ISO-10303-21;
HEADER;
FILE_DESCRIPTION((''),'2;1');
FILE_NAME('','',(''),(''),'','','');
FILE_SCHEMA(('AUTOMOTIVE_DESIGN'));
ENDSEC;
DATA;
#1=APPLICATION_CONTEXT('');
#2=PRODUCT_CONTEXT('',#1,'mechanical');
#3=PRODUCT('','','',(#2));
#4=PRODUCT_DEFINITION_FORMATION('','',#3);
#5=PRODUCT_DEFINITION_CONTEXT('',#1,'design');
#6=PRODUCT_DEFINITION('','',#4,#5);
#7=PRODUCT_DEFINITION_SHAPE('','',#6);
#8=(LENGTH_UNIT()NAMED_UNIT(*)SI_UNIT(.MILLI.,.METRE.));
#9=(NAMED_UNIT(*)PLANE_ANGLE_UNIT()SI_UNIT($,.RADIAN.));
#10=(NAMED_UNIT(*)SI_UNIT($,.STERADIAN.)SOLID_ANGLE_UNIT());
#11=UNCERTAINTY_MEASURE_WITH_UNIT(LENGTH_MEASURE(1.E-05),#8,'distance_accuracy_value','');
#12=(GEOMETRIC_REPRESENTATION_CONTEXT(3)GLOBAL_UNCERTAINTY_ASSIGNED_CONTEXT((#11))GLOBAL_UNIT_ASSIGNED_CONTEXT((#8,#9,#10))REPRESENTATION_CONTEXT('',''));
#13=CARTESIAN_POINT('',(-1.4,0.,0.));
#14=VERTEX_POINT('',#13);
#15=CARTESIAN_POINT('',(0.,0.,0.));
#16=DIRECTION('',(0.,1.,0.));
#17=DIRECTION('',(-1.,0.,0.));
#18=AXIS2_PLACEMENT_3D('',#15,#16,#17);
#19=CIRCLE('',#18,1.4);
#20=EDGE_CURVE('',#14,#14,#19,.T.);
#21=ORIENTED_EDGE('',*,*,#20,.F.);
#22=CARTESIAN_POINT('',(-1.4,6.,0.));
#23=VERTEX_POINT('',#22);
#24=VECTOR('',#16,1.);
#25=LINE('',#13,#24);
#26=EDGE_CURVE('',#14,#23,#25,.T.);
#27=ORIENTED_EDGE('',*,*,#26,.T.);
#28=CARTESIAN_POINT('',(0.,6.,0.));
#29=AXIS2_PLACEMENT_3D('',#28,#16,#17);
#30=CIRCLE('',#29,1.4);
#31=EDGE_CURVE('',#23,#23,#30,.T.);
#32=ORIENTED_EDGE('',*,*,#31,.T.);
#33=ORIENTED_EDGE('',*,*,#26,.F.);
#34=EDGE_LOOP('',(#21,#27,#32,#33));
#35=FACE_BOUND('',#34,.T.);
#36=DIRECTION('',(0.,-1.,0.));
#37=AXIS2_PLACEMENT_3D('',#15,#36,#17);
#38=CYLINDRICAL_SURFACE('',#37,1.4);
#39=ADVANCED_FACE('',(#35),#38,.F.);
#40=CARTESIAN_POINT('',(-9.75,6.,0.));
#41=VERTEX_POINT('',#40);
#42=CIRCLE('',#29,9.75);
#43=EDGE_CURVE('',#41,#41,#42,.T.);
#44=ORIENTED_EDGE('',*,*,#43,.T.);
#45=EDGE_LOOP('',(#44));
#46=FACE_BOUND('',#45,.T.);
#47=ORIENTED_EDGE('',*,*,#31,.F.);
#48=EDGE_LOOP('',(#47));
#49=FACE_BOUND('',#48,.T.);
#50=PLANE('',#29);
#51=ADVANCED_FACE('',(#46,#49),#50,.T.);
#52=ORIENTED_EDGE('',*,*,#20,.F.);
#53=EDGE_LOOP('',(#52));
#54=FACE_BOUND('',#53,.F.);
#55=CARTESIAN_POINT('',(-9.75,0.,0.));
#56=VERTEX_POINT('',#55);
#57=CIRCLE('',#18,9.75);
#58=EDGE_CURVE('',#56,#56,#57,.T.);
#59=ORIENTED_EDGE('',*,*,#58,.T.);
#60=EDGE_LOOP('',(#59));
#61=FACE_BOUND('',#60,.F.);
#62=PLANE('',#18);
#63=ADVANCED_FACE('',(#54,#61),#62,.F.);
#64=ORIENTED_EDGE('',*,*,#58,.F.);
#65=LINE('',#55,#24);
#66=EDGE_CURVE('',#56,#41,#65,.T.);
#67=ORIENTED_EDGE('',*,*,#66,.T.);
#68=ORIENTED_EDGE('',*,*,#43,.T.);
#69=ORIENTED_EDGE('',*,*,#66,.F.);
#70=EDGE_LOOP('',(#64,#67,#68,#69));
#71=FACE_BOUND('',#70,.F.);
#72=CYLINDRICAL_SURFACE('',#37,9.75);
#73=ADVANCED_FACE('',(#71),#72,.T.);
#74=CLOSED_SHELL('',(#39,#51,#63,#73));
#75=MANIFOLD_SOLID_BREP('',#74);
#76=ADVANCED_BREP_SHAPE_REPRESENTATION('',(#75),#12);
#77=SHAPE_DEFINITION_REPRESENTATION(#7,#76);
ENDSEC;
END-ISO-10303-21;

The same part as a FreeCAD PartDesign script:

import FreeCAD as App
import Part
import Sketcher
from FreeCAD import Vector
Q = App.Units.Quantity

doc = App.newDocument("Part")
body = doc.addObject("PartDesign::Body", "Body")

# Sketch on XZ plane
sketch1 = doc.addObject("Sketcher::SketchObject", "Sketch")
body.addObject(sketch1)
sketch1.AttachmentSupport = (doc.XZ_Plane, [""])
sketch1.MapMode = "FlatFace"
sketch1.addGeometry(Part.Circle(Vector(0, 0, 0), Vector(0, 0, 1), 9.8), False)
sketch1.addGeometry(Part.Circle(Vector(0, 0, 0), Vector(0, 0, 1), 1.4), False)
sketch1.addConstraint(Sketcher.Constraint("Coincident", 0, 3, -1, 1))
sketch1.addConstraint(Sketcher.Constraint("Coincident", 1, 3, -1, 1))
sketch1.addConstraint(Sketcher.Constraint("Diameter", 0, Q("19.5 mm")))
sketch1.addConstraint(Sketcher.Constraint("Diameter", 1, Q("2.8 mm")))
pad1 = doc.addObject("PartDesign::Pad", "Pad")
body.addObject(pad1)
pad1.Profile = sketch1
pad1.Length = 6
pad1.Reversed = True

doc.recompute()
